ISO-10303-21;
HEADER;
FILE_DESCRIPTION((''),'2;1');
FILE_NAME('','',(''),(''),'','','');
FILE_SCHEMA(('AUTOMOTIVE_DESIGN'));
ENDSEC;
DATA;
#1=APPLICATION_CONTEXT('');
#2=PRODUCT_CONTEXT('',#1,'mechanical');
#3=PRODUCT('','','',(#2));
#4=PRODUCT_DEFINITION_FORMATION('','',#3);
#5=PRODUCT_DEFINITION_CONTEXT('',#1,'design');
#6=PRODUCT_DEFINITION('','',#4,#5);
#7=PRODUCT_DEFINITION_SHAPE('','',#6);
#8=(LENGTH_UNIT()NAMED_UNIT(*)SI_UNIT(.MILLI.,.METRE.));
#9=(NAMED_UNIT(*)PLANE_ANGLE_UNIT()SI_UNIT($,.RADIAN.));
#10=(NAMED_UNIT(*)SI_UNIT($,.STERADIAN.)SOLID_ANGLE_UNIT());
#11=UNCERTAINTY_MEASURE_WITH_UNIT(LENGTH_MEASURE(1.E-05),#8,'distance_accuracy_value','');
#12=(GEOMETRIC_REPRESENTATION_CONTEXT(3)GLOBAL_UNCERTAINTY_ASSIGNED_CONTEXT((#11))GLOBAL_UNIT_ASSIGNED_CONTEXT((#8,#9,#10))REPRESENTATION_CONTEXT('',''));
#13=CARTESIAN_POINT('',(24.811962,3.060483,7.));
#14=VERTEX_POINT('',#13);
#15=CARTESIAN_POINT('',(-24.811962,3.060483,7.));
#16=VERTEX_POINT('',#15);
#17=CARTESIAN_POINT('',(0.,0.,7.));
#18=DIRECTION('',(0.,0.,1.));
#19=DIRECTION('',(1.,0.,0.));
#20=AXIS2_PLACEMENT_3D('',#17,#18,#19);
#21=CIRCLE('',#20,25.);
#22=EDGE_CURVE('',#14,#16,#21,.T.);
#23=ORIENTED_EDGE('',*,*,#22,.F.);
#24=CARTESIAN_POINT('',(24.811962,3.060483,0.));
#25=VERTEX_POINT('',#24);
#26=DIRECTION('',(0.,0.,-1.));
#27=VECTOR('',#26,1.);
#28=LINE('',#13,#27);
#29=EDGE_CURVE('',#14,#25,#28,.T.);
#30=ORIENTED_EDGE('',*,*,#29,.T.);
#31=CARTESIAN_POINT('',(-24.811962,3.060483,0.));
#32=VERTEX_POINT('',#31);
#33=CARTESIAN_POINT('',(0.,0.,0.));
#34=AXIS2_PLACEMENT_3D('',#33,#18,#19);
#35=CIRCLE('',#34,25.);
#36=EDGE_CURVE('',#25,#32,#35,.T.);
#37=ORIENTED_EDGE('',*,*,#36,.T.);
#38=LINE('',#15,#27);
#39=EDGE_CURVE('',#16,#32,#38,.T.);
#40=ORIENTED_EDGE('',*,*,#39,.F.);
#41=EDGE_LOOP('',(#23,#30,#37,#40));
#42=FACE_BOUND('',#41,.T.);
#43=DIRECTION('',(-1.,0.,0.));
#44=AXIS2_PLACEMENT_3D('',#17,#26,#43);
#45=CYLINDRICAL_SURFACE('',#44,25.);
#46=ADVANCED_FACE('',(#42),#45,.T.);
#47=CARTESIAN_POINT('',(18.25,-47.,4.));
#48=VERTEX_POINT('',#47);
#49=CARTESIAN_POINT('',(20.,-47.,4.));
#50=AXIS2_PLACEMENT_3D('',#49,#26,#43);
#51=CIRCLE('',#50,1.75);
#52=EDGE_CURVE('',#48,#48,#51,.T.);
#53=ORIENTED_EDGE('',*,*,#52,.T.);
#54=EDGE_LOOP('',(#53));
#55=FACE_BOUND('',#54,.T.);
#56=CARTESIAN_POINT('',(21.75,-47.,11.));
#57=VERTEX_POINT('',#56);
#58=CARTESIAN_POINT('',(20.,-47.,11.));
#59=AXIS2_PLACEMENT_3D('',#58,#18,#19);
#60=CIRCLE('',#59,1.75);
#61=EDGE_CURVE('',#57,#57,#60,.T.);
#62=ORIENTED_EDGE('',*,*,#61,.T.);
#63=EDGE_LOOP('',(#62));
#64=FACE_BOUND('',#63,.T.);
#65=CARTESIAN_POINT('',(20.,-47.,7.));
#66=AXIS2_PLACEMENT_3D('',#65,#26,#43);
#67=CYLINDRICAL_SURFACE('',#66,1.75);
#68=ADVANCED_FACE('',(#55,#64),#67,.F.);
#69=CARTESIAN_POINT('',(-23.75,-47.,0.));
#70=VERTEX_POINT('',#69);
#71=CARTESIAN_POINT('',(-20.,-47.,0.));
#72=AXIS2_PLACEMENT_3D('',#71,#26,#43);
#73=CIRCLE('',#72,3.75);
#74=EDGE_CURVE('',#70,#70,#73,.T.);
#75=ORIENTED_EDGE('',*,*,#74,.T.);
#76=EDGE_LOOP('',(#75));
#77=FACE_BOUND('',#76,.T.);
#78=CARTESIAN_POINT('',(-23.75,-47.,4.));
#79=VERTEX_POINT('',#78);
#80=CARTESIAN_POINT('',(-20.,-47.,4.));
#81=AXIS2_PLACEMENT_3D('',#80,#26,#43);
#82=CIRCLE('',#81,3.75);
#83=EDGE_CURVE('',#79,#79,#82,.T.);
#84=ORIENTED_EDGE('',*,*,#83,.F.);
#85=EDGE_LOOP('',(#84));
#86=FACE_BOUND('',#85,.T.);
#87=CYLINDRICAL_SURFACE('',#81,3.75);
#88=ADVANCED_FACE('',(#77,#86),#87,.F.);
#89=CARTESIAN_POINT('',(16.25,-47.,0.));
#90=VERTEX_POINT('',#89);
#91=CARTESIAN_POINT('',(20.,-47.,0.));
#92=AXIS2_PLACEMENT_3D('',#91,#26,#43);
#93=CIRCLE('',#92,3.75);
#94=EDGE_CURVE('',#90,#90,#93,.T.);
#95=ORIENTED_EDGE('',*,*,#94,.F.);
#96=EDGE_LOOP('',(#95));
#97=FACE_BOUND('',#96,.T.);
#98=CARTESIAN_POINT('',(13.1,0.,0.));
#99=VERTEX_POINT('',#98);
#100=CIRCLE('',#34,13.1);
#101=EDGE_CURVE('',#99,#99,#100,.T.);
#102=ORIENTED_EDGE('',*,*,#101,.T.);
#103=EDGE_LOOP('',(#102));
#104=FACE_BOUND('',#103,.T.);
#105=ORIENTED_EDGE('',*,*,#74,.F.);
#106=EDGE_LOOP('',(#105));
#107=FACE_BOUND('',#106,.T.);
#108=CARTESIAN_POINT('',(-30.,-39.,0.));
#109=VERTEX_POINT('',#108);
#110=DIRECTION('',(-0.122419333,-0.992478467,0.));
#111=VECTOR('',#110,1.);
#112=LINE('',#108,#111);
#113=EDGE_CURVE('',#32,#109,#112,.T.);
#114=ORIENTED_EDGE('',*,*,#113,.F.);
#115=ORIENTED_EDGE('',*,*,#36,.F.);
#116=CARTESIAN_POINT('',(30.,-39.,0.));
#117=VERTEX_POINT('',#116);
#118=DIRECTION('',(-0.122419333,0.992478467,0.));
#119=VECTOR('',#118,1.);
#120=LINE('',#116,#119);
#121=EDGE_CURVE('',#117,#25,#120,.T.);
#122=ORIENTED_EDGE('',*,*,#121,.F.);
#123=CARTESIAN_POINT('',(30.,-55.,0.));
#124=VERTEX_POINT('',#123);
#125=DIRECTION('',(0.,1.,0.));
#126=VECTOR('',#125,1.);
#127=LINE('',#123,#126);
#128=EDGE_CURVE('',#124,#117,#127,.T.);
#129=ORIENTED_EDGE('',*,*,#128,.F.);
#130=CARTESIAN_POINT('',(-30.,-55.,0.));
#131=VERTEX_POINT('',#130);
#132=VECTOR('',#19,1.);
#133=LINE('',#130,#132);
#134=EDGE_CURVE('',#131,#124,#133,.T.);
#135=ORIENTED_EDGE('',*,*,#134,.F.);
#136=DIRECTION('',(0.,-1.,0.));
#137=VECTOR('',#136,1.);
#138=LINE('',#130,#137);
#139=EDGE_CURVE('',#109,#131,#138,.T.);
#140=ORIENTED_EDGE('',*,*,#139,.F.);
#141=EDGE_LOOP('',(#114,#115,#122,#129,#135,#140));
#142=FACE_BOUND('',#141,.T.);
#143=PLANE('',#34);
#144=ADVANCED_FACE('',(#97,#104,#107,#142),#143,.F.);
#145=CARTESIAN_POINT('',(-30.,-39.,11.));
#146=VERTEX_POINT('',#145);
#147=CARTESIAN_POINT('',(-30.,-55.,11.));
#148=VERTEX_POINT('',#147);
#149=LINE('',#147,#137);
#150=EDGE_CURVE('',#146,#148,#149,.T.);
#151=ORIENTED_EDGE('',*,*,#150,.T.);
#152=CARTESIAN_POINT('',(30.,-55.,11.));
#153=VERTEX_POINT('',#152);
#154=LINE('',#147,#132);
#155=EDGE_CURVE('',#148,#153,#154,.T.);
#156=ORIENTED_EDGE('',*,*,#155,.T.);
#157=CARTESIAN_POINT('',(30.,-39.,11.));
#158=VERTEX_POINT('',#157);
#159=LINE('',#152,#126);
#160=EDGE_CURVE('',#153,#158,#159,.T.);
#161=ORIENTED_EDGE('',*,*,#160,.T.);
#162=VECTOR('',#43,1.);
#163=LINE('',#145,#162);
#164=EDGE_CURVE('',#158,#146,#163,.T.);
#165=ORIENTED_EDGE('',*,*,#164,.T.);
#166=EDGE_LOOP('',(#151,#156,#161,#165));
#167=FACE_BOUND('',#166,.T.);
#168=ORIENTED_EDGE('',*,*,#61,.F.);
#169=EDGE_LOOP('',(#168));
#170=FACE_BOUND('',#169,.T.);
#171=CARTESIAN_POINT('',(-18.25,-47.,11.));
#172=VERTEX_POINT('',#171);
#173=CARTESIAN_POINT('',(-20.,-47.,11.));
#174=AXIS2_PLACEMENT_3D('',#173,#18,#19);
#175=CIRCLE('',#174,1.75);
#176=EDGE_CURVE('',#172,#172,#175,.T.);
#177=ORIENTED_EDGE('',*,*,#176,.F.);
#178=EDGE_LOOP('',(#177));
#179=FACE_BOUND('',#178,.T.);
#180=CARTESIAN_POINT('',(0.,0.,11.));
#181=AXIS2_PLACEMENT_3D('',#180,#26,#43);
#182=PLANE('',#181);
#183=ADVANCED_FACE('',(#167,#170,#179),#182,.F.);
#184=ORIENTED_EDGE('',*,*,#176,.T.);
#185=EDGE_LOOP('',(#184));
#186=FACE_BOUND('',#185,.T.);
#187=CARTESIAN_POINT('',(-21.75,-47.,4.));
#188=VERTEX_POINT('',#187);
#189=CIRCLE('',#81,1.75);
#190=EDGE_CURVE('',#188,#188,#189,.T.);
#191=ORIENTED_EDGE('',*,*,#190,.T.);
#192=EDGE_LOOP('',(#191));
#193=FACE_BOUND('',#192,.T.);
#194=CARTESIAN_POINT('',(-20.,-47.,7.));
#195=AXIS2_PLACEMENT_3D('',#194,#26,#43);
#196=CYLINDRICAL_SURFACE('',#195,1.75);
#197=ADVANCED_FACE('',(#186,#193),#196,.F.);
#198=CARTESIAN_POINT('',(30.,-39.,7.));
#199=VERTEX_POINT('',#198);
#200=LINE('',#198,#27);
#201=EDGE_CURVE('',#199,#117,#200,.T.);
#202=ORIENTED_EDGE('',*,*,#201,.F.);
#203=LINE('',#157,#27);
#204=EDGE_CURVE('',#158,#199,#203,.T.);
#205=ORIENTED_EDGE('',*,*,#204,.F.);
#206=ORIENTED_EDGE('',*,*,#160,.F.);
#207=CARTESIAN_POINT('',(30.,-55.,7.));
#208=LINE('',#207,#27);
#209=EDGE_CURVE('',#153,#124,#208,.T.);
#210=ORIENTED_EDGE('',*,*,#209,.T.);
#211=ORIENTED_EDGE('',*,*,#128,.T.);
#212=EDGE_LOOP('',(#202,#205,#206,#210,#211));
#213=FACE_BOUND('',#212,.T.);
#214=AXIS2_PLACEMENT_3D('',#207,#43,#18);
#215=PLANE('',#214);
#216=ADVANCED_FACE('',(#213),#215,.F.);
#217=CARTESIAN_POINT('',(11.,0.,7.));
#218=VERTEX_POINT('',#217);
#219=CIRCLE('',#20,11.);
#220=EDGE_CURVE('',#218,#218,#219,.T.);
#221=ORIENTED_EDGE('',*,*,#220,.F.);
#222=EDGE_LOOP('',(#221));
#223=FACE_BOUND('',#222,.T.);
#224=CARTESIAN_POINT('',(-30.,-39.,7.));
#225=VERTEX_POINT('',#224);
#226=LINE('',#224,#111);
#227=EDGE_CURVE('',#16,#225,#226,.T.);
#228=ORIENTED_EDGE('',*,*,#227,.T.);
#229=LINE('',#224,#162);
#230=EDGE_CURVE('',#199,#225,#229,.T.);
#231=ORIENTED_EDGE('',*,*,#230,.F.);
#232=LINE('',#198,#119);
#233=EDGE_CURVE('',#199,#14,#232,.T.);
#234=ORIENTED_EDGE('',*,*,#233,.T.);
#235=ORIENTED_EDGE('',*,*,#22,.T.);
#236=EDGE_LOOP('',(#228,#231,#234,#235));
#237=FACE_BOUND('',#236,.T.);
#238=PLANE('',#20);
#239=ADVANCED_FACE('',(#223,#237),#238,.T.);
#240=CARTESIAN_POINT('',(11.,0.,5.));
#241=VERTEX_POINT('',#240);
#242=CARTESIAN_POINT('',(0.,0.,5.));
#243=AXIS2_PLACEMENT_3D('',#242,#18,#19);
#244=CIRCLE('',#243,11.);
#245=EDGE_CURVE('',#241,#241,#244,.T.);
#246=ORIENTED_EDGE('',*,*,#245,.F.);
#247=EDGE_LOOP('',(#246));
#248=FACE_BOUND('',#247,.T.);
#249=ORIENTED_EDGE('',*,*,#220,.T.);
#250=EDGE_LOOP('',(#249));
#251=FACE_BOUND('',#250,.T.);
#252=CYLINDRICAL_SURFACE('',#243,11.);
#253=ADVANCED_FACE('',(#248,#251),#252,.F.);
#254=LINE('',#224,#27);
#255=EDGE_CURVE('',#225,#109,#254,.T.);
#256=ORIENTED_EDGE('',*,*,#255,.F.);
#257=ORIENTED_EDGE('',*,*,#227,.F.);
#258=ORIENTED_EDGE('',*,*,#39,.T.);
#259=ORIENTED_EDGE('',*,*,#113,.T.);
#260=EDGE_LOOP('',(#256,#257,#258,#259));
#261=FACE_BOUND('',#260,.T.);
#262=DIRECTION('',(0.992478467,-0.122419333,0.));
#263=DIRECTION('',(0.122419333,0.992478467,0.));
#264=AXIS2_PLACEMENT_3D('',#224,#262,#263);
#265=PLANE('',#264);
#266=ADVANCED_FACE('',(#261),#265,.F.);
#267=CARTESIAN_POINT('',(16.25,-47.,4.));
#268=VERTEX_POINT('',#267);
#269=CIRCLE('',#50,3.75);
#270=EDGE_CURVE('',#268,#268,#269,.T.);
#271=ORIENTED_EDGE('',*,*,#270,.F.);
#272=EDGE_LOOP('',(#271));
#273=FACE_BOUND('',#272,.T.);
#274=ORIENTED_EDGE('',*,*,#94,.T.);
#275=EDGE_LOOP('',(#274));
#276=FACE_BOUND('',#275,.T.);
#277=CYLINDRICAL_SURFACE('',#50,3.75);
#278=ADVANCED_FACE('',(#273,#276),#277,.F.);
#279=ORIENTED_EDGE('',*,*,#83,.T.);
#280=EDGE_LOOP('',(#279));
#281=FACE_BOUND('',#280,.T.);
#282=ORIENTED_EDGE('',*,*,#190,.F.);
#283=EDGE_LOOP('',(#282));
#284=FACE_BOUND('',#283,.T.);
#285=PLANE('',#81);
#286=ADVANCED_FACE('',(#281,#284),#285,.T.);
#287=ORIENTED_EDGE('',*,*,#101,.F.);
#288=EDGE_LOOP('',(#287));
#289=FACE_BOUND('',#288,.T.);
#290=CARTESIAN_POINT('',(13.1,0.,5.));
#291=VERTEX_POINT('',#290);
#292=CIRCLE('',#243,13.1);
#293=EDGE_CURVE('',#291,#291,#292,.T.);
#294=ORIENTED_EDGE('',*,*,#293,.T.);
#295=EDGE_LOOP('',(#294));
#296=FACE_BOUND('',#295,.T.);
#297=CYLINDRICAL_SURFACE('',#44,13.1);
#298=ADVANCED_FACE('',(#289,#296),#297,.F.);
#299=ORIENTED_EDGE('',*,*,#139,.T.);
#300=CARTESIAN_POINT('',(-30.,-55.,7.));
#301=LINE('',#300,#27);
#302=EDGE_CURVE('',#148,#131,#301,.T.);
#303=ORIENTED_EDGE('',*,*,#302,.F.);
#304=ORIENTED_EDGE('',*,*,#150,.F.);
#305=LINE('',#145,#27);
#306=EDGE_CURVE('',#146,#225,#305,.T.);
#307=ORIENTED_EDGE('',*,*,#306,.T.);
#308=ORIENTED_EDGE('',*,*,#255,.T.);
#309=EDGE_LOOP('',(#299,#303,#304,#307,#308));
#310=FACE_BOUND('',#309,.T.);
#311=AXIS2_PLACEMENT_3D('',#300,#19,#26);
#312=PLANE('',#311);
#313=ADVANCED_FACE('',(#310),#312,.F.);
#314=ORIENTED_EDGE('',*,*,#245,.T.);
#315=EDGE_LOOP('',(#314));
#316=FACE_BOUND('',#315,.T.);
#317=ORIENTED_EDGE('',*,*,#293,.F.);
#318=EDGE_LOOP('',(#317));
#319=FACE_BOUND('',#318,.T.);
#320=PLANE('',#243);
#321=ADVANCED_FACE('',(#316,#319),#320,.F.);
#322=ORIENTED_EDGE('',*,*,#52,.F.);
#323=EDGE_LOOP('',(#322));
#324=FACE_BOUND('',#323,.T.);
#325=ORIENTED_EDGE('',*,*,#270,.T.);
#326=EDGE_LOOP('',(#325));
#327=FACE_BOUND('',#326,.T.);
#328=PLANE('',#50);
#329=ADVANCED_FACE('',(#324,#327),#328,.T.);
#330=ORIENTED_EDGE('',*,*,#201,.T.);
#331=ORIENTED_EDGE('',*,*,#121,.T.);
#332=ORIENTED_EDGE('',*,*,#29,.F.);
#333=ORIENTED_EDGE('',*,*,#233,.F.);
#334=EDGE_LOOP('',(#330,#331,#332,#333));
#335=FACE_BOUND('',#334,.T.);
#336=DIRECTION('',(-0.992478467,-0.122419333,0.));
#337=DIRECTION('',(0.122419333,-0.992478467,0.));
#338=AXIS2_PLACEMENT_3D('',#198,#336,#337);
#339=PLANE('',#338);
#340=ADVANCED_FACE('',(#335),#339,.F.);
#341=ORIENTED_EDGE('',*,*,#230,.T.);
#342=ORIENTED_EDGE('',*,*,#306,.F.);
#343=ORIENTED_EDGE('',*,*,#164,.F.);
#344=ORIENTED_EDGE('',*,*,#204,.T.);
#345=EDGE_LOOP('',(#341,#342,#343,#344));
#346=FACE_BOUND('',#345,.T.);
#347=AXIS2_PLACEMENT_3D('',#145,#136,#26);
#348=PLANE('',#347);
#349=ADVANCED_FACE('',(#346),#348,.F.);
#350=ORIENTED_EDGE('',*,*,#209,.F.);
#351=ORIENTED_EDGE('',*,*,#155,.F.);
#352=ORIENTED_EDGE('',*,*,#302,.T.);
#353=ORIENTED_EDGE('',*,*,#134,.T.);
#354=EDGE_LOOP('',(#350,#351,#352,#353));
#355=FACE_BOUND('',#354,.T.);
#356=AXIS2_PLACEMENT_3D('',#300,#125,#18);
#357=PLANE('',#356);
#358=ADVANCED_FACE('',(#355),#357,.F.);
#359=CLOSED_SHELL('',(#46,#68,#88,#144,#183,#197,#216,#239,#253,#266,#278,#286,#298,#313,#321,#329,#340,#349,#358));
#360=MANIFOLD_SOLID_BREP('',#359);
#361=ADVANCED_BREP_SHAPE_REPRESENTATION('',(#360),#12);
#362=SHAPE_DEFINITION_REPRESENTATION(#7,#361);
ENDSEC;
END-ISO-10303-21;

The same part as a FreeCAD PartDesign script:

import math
import FreeCAD as App
import Part
import Sketcher

V = App.Vector

doc = App.newDocument("Part")
params = doc.addObject("Spreadsheet::Sheet", "Params")
for row, (alias, value) in enumerate([
    ("sketch1_radius", "25 mm"),
    ("sketch1_diameter", "3.5 mm"),
    ("sketch1_diameter2", "26.2 mm"),
    ("sketch1_width", "60 mm"),
    ("sketch1_height", "16 mm"),
    ("pad1_length", "7 mm"),
    ("sketch2_diameter", "22 mm"),
    ("sketch2_diameter2", "26.2 mm"),
    ("pad2_length", "2 mm"),
    ("sketch3_diameter", "3.5 mm"),
    ("sketch3_width", "60 mm"),
    ("sketch3_height", "16 mm"),
    ("pad3_length", "4 mm"),
    ("sketch4_diameter", "7.5 mm"),
    ("pocket1_length", "4 mm"),
], start=1):
    params.set(f"A{row}", alias)
    params.set(f"B{row}", "=" + value)
    params.setAlias(f"B{row}", alias)

body = doc.addObject("PartDesign::Body", "Body")

# Sketch on XY plane
sketch1 = body.newObject("Sketcher::SketchObject", "Sketch")
sketch1.AttachmentSupport = (doc.getObject("XY_Plane"), [""])
sketch1.MapMode = "FlatFace"
sketch1.addGeometry([
    Part.LineSegment(V(-30, -55, 0), V(30, -55, 0)),  # 0
    Part.LineSegment(V(30, -55, 0), V(30, -39, 0)),  # 1
    Part.LineSegment(V(30, -39, 0), V(24.8, 3.1, 0)),  # 2
    Part.ArcOfCircle(Part.Circle(V(0, 0, 0), V(0, 0, 1), 25), math.radians(7), math.radians(173)),  # 3
    Part.LineSegment(V(-24.8, 3.1, 0), V(-30, -39, 0)),  # 4
    Part.LineSegment(V(-30, -39, 0), V(-30, -55, 0)),  # 5
    Part.Circle(V(-20, -47, 0), V(0, 0, 1), 1.8),  # 6
    Part.Circle(V(20, -47, 0), V(0, 0, 1), 1.8),  # 7
    Part.Circle(V(0, 0, 0), V(0, 0, 1), 13.1),  # 8
], False)
sketch1.addConstraint([
    Sketcher.Constraint("Coincident", 0, 2, 1, 1),
    Sketcher.Constraint("Coincident", 1, 2, 2, 1),
    Sketcher.Constraint("Tangent", 2, 2, 3, 1),
    Sketcher.Constraint("Tangent", 3, 2, 4, 1),
    Sketcher.Constraint("Coincident", 4, 2, 5, 1),
    Sketcher.Constraint("Coincident", 5, 2, 0, 1),
    Sketcher.Constraint("Horizontal", 0),
    Sketcher.Constraint("Vertical", 1),
    Sketcher.Constraint("Vertical", 5),
    Sketcher.Constraint("Coincident", 3, 3, -1, 1),
    Sketcher.Constraint("Coincident", 8, 3, -1, 1),
    Sketcher.Constraint("Equal", 6, 7),
    Sketcher.Constraint("Symmetric", 6, 3, 7, 3, -2),
    Sketcher.Constraint("Symmetric", 1, 2, 4, 2, -2),
    Sketcher.Constraint("Radius", 3, 25.0),
    Sketcher.Constraint("Diameter", 6, 3.5),
    Sketcher.Constraint("Diameter", 8, 26.2),
    Sketcher.Constraint("DistanceX", 0, 1, 0, 2, 60.0),
    Sketcher.Constraint("DistanceY", 1, 1, 1, 2, 16.0),
    Sketcher.Constraint("DistanceX", 6, 3, -1, 1, 20.0),
    Sketcher.Constraint("DistanceY", 6, 3, -1, 1, 47.0),
    Sketcher.Constraint("DistanceY", 0, 2, -1, 1, 55.0),
])
sketch1.setExpression("Constraints[14]", "Params.sketch1_radius")
sketch1.setExpression("Constraints[15]", "Params.sketch1_diameter")
sketch1.setExpression("Constraints[16]", "Params.sketch1_diameter2")
sketch1.setExpression("Constraints[17]", "Params.sketch1_width")
sketch1.setExpression("Constraints[18]", "Params.sketch1_height")
pad1 = body.newObject("PartDesign::Pad", "Pad")
pad1.Profile = sketch1
pad1.setExpression("Length", "Params.pad1_length")

# Sketch on XY plane
sketch2 = body.newObject("Sketcher::SketchObject", "Sketch001")
sketch2.AttachmentSupport = (doc.getObject("XY_Plane"), [""])
sketch2.MapMode = "FlatFace"
sketch2.AttachmentOffset = App.Placement(V(0, 0, 7), App.Rotation())
sketch2.addGeometry([
    Part.Circle(V(0, 0, 0), V(0, 0, 1), 13),
    Part.Circle(V(0, 0, 0), V(0, 0, 1), 11),
], False)
sketch2.addConstraint([
    Sketcher.Constraint("Coincident", 0, 3, -1, 1),
    Sketcher.Constraint("Coincident", 1, 3, -1, 1),
    Sketcher.Constraint("Diameter", 1, 22.0),
    Sketcher.Constraint("Diameter", 0, 26.2),
])
sketch2.setExpression("Constraints[2]", "Params.sketch2_diameter")
sketch2.setExpression("Constraints[3]", "Params.sketch2_diameter2")
pad2 = body.newObject("PartDesign::Pad", "Pad001")
pad2.Profile = sketch2
pad2.setExpression("Length", "Params.pad2_length")
pad2.Reversed = True

# Sketch on XY plane
sketch3 = body.newObject("Sketcher::SketchObject", "Sketch002")
sketch3.AttachmentSupport = (doc.getObject("XY_Plane"), [""])
sketch3.MapMode = "FlatFace"
sketch3.AttachmentOffset = App.Placement(V(0, 0, 7), App.Rotation())
sketch3.addGeometry([
    Part.LineSegment(V(-30, -39, 0), V(-30, -55, 0)),  # 0
    Part.LineSegment(V(-30, -55, 0), V(30, -55, 0)),  # 1
    Part.LineSegment(V(30, -55, 0), V(30, -39, 0)),  # 2
    Part.LineSegment(V(30, -39, 0), V(-30, -39, 0)),  # 3
    Part.Circle(V(-20, -47, 0), V(0, 0, 1), 1.8),  # 4
    Part.Circle(V(20, -47, 0), V(0, 0, 1), 1.8),  # 5
], False)
sketch3.addConstraint([
    Sketcher.Constraint("Coincident", 0, 2, 1, 1),
    Sketcher.Constraint("Coincident", 1, 2, 2, 1),
    Sketcher.Constraint("Coincident", 2, 2, 3, 1),
    Sketcher.Constraint("Coincident", 3, 2, 0, 1),
    Sketcher.Constraint("Vertical", 0),
    Sketcher.Constraint("Horizontal", 1),
    Sketcher.Constraint("Vertical", 2),
    Sketcher.Constraint("Horizontal", 3),
    Sketcher.Constraint("Equal", 4, 5),
    Sketcher.Constraint("Symmetric", 4, 3, 5, 3, -2),
    Sketcher.Constraint("Diameter", 4, 3.5),
    Sketcher.Constraint("DistanceX", 1, 1, 1, 2, 60.0),
    Sketcher.Constraint("DistanceY", 0, 2, 0, 1, 16.0),
    Sketcher.Constraint("DistanceX", 4, 3, -1, 1, 20.0),
    Sketcher.Constraint("DistanceY", 4, 3, -1, 1, 47.0),
    Sketcher.Constraint("DistanceX", 0, 2, -1, 1, 30.0),
    Sketcher.Constraint("DistanceY", 0, 2, -1, 1, 55.0),
])
sketch3.setExpression("Constraints[10]", "Params.sketch3_diameter")
sketch3.setExpression("Constraints[11]", "Params.sketch3_width")
sketch3.setExpression("Constraints[12]", "Params.sketch3_height")
pad3 = body.newObject("PartDesign::Pad", "Pad002")
pad3.Profile = sketch3
pad3.setExpression("Length", "Params.pad3_length")

# Sketch on XY plane
sketch4 = body.newObject("Sketcher::SketchObject", "Sketch003")
sketch4.AttachmentSupport = (doc.getObject("XY_Plane"), [""])
sketch4.MapMode = "FlatFace"
sketch4.addGeometry([
    Part.Circle(V(20, -47, 0), V(0, 0, 1), 3.8),
    Part.Circle(V(-20, -47, 0), V(0, 0, 1), 3.8),
], False)
sketch4.addConstraint([
    Sketcher.Constraint("Equal", 0, 1),
    Sketcher.Constraint("Symmetric", 0, 3, 1, 3, -2),
    Sketcher.Constraint("Diameter", 0, 7.5),
    Sketcher.Constraint("DistanceX", -1, 1, 0, 3, 20.0),
    Sketcher.Constraint("DistanceY", 0, 3, -1, 1, 47.0),
])
sketch4.setExpression("Constraints[2]", "Params.sketch4_diameter")
pocket1 = body.newObject("PartDesign::Pocket", "Pocket")
pocket1.Profile = sketch4
pocket1.setExpression("Length", "Params.pocket1_length")
pocket1.Reversed = True

doc.recompute()
